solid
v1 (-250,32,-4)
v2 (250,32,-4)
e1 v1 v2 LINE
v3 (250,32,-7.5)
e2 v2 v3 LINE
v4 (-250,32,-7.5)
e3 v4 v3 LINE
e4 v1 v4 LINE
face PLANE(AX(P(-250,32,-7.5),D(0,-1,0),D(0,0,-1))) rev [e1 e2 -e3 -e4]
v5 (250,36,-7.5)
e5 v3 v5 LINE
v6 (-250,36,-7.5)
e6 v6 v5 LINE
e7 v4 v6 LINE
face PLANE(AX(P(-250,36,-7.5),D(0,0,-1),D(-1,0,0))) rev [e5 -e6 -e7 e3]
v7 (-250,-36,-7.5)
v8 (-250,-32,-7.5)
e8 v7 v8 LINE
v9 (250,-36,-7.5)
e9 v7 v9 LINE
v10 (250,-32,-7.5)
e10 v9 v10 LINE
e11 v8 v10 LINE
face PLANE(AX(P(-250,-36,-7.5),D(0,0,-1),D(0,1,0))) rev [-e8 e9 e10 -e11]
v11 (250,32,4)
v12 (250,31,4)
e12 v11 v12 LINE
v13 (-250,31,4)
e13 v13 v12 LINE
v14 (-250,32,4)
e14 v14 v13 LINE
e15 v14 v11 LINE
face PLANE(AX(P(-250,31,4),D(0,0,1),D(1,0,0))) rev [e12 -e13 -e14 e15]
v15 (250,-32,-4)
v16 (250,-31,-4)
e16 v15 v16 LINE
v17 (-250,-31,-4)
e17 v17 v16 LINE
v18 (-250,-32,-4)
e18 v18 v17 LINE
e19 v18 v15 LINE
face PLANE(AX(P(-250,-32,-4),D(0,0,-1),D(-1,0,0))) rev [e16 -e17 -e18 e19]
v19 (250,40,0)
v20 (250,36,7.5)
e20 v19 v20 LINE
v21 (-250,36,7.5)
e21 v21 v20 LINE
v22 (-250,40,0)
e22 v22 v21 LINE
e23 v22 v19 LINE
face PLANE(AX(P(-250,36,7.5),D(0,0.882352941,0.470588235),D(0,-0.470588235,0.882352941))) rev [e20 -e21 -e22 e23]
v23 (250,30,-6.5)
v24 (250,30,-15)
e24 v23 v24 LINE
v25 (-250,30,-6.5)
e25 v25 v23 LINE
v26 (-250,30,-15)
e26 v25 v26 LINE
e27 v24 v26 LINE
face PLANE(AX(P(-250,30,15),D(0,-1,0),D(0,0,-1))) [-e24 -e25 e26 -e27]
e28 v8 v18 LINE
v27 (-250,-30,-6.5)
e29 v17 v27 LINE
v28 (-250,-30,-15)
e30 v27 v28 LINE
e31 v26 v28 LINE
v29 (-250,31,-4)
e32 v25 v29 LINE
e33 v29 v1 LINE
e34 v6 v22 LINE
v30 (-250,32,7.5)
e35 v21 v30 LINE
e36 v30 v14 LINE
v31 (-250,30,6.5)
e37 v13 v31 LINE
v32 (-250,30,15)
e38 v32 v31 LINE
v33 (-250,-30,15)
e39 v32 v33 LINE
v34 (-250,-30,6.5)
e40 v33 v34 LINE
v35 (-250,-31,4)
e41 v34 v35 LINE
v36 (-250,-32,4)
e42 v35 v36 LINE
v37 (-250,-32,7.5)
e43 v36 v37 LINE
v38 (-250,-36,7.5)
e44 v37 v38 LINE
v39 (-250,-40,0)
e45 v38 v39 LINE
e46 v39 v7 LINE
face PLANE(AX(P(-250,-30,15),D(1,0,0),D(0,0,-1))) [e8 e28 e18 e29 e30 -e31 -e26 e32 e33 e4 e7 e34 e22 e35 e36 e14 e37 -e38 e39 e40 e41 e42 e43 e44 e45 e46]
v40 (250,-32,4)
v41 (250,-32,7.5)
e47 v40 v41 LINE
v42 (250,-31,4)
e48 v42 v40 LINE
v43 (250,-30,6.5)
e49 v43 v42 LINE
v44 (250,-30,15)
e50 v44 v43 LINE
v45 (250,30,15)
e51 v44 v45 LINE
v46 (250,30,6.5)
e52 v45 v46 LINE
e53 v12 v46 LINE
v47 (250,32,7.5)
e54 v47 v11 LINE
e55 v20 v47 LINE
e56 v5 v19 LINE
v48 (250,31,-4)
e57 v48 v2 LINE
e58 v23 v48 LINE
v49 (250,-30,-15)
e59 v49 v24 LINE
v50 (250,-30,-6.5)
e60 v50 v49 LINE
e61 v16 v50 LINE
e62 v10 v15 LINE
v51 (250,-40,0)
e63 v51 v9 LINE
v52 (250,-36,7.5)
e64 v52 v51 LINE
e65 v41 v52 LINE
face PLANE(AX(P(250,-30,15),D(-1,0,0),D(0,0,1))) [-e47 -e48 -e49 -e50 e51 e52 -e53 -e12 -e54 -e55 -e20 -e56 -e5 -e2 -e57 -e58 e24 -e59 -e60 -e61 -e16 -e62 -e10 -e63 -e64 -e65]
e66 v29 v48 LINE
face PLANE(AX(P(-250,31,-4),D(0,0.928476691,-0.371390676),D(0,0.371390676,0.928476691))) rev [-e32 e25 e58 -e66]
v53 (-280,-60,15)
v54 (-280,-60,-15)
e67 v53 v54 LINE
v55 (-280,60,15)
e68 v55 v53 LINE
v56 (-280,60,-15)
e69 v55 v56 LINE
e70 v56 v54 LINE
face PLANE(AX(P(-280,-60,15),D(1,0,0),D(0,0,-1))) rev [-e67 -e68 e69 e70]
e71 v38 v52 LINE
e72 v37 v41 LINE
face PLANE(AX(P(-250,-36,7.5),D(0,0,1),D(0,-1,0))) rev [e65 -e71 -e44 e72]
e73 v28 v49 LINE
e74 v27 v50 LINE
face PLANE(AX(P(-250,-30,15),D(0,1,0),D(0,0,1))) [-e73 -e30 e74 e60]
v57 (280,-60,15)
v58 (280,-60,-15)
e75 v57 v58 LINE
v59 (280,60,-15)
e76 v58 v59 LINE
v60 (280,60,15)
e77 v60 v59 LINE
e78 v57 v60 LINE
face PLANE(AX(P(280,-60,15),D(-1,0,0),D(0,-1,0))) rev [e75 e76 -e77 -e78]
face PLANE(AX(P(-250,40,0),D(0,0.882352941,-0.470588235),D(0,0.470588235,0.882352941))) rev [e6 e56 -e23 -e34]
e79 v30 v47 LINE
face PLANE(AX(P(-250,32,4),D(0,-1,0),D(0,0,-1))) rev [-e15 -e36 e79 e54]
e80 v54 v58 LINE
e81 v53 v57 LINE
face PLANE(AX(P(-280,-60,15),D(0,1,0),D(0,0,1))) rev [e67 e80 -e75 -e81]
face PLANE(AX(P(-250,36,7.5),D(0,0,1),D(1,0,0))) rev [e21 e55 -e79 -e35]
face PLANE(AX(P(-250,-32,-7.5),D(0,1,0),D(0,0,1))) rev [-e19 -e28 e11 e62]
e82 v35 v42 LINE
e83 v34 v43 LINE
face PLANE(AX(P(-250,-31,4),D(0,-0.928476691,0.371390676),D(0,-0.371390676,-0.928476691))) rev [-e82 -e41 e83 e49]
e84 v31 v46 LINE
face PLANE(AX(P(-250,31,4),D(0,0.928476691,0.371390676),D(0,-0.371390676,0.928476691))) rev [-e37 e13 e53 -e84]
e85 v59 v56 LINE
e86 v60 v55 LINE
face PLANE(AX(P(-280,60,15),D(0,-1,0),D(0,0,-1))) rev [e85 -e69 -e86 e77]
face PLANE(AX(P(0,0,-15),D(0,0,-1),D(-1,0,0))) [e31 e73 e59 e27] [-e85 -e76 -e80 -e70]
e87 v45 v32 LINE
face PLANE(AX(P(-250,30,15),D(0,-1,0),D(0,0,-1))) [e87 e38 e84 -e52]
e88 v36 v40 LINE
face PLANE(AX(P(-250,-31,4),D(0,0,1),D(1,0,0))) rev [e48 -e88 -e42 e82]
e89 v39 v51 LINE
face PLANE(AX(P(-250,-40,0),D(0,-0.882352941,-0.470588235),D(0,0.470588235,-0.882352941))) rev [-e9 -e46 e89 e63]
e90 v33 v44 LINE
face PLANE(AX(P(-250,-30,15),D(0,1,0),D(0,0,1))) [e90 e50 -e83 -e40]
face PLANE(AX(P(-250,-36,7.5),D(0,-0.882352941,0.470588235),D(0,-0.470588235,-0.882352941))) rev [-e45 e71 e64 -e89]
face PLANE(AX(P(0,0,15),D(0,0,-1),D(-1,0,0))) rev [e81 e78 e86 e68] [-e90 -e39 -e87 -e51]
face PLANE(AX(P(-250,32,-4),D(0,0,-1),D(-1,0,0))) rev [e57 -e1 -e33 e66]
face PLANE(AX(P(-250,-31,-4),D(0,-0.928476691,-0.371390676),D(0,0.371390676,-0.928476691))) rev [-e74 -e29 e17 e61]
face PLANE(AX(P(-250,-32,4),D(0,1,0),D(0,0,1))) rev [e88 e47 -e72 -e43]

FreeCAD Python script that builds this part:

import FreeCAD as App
import Part
import Sketcher
from FreeCAD import Vector


def add_polygon(sketch, points):
    """Adds a closed chain of lines whose ends are joined by coincident constraints."""
    first, n = sketch.GeometryCount, len(points)
    for a, b in zip(points, points[1:] + points[:1]):
        sketch.addGeometry(Part.LineSegment(App.Vector(*a, 0), App.Vector(*b, 0)), False)
    for i in range(n):
        sketch.addConstraint(Sketcher.Constraint("Coincident", first + i, 2, first + (i + 1) % n, 1))

doc = App.newDocument("Part")
body = doc.addObject("PartDesign::Body", "Body")

# Sketch on XY plane
sketch1 = body.newObject("Sketcher::SketchObject", "Sketch")
sketch1.AttachmentSupport = (doc.getObject("XY_Plane"), [""])
sketch1.MapMode = "FlatFace"
add_polygon(sketch1, [(-280, 60), (-280, -60), (280, -60), (280, 60)])  # lines 0-3
add_polygon(sketch1, [(250, -30), (-250, -30), (-250, 30), (250, 30)])  # lines 4-7
sketch1.addConstraint([
    Sketcher.Constraint("Vertical", 0),
    Sketcher.Constraint("Horizontal", 1),
    Sketcher.Constraint("Vertical", 2),
    Sketcher.Constraint("Horizontal", 3),
    Sketcher.Constraint("Horizontal", 4),
    Sketcher.Constraint("Vertical", 5),
    Sketcher.Constraint("Horizontal", 6),
    Sketcher.Constraint("Vertical", 7),
    Sketcher.Constraint("Symmetric", 0, 2, 2, 2, -1, 1),
    Sketcher.Constraint("Symmetric", 4, 2, 6, 2, -1, 1),
    Sketcher.Constraint("DistanceX", 1, 1, 1, 2, 560.0),
    Sketcher.Constraint("DistanceX", 4, 2, 4, 1, 500.0),
    Sketcher.Constraint("DistanceY", 0, 2, 0, 1, 120.0),
    Sketcher.Constraint("DistanceY", 5, 1, 5, 2, 60.0),
])
pad1 = body.newObject("PartDesign::Pad", "Pad")
pad1.Profile = sketch1
pad1.Length = 30
pad1.Midplane = True

# Sketch on YZ plane
sketch2 = body.newObject("Sketcher::SketchObject", "Sketch001")
sketch2.AttachmentSupport = (doc.getObject("YZ_Plane"), [""])
sketch2.MapMode = "FlatFace"
add_polygon(sketch2, [(31, 4), (30, 6.5), (30, -6.5), (31, -4), (32, -4), (32, -7.5), (36, -7.5), (40, 0), (36, 7.5), (32, 7.5), (32, 4)])  # lines 0-10
add_polygon(sketch2, [(-30, -6.5), (-30, 6.5), (-31, 4), (-32, 4), (-32, 7.5), (-36, 7.5), (-40, 0), (-36, -7.5), (-32, -7.5), (-32, -4), (-31, -4)])  # lines 11-21
sketch2.addConstraint([
    Sketcher.Constraint("Vertical", 1),
    Sketcher.Constraint("Horizontal", 3),
    Sketcher.Constraint("Vertical", 4),
    Sketcher.Constraint("Horizontal", 5),
    Sketcher.Constraint("Horizontal", 8),
    Sketcher.Constraint("Vertical", 9),
    Sketcher.Constraint("Horizontal", 10),
    Sketcher.Constraint("Vertical", 11),
    Sketcher.Constraint("Horizontal", 13),
    Sketcher.Constraint("Vertical", 14),
    Sketcher.Constraint("Horizontal", 15),
    Sketcher.Constraint("Horizontal", 18),
    Sketcher.Constraint("Vertical", 19),
    Sketcher.Constraint("Horizontal", 20),
    Sketcher.Constraint("Symmetric", 1, 2, 11, 2, -1, 1),
    Sketcher.Constraint("Symmetric", 2, 2, 12, 2, -1, 1),
    Sketcher.Constraint("Symmetric", 4, 2, 14, 2, -1, 1),
    Sketcher.Constraint("Symmetric", 6, 2, 16, 2, -1, 1),
    Sketcher.Constraint("Symmetric", 7, 2, 17, 2, -1, 1),
    Sketcher.Constraint("Symmetric", 9, 2, 19, 2, -1, 1),
    Sketcher.Constraint("Symmetric", 10, 2, 12, 2, -2),
    Sketcher.Constraint("Symmetric", 8, 2, 14, 2, -2),
    Sketcher.Constraint("PointOnObject", 6, 2, -1),
    Sketcher.Constraint("Parallel", 6, 16),
    Sketcher.Constraint("Parallel", 0, 21),
    Sketcher.Constraint("Horizontal", 0, 2, 11, 2),
    Sketcher.Constraint("Horizontal", 1, 2, 21, 2),
    Sketcher.Constraint("Vertical", 5, 2, 7, 2),
    Sketcher.Constraint("DistanceX", 3, 1, 3, 2, 1.0),
    Sketcher.Constraint("DistanceX", 5, 1, 5, 2, 4.0),
    Sketcher.Constraint("DistanceY", 1, 2, 1, 1, 13.0),
    Sketcher.Constraint("DistanceY", 4, 2, 4, 1, 3.5),
    Sketcher.Constraint("DistanceX", -1, 1, 0, 2, 30.0),
    Sketcher.Constraint("DistanceX", -1, 1, 2, 2, 31.0),
    Sketcher.Constraint("DistanceY", 2, 2, -1, 1, 4.0),
    Sketcher.Constraint("DistanceX", -1, 1, 6, 2, 40.0),
])
pocket1 = body.newObject("PartDesign::Pocket", "Pocket")
pocket1.Profile = sketch2
pocket1.Length = 500
pocket1.Midplane = True

doc.recompute()
